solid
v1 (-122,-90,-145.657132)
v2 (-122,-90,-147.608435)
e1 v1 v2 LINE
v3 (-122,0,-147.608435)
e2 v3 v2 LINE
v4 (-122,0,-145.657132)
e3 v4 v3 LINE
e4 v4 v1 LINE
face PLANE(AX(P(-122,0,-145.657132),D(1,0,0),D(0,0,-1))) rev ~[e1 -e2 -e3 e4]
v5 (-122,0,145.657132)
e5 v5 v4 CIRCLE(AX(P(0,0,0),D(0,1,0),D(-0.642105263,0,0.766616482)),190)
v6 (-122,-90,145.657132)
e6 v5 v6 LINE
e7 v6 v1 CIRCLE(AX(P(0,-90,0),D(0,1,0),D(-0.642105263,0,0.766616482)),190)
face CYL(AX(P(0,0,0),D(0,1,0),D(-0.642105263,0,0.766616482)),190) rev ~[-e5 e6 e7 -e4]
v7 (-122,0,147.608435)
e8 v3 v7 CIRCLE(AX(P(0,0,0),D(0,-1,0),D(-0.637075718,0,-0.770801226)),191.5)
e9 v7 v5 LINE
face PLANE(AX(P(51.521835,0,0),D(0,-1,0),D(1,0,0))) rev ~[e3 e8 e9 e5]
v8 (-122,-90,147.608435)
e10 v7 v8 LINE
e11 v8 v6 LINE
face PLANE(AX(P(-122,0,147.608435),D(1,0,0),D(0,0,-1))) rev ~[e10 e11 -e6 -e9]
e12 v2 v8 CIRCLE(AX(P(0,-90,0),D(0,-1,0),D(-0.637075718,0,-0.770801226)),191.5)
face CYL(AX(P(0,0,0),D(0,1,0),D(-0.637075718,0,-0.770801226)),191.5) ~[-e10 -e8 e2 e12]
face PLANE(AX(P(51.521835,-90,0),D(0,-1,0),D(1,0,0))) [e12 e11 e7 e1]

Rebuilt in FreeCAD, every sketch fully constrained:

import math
import FreeCAD as App
import Part
import Sketcher
from FreeCAD import Vector
Q = App.Units.Quantity

doc = App.newDocument("Part")
body = doc.addObject("PartDesign::Body", "Body")

sketch1 = doc.addObject("Sketcher::SketchObject", "Sketch")
body.addObject(sketch1)
sketch1.AttachmentSupport = (doc.XZ_Plane, [""])
sketch1.MapMode = "FlatFace"
sketch1.addGeometry(Part.ArcOfCircle(Part.Circle(Vector(0, 0, 0), Vector(0, 0, 1), 190), math.radians(-130), math.radians(130)), False)
sketch1.addGeometry(Part.LineSegment(Vector(-122, -145.7, 0), Vector(-122, -147.6, 0)), False)
sketch1.addGeometry(Part.ArcOfCircle(Part.Circle(Vector(0, 0, 0), Vector(0, 0, 1), 191.5), math.radians(-130), math.radians(130)), False)
sketch1.addGeometry(Part.LineSegment(Vector(-122, 147.6, 0), Vector(-122, 145.7, 0)), False)
sketch1.addConstraint(Sketcher.Constraint("Coincident", 0, 1, 1, 1))
sketch1.addConstraint(Sketcher.Constraint("Coincident", 1, 2, 2, 1))
sketch1.addConstraint(Sketcher.Constraint("Coincident", 2, 2, 3, 1))
sketch1.addConstraint(Sketcher.Constraint("Coincident", 3, 2, 0, 2))
sketch1.addConstraint(Sketcher.Constraint("Vertical", 1))
sketch1.addConstraint(Sketcher.Constraint("Vertical", 3))
sketch1.addConstraint(Sketcher.Constraint("Coincident", 0, 3, -1, 1))
sketch1.addConstraint(Sketcher.Constraint("Coincident", 2, 3, -1, 1))
sketch1.addConstraint(Sketcher.Constraint("Vertical", 1, 2, 2, 2))
sketch1.addConstraint(Sketcher.Constraint("Radius", 0, Q("190 mm")))
sketch1.addConstraint(Sketcher.Constraint("Radius", 2, Q("191.5 mm")))
sketch1.addConstraint(Sketcher.Constraint("DistanceX", 0, 1, -1, 1, Q("122 mm")))
pad1 = doc.addObject("PartDesign::Pad", "Pad")
body.addObject(pad1)
pad1.Profile = sketch1
pad1.Length = 90

doc.recompute()
